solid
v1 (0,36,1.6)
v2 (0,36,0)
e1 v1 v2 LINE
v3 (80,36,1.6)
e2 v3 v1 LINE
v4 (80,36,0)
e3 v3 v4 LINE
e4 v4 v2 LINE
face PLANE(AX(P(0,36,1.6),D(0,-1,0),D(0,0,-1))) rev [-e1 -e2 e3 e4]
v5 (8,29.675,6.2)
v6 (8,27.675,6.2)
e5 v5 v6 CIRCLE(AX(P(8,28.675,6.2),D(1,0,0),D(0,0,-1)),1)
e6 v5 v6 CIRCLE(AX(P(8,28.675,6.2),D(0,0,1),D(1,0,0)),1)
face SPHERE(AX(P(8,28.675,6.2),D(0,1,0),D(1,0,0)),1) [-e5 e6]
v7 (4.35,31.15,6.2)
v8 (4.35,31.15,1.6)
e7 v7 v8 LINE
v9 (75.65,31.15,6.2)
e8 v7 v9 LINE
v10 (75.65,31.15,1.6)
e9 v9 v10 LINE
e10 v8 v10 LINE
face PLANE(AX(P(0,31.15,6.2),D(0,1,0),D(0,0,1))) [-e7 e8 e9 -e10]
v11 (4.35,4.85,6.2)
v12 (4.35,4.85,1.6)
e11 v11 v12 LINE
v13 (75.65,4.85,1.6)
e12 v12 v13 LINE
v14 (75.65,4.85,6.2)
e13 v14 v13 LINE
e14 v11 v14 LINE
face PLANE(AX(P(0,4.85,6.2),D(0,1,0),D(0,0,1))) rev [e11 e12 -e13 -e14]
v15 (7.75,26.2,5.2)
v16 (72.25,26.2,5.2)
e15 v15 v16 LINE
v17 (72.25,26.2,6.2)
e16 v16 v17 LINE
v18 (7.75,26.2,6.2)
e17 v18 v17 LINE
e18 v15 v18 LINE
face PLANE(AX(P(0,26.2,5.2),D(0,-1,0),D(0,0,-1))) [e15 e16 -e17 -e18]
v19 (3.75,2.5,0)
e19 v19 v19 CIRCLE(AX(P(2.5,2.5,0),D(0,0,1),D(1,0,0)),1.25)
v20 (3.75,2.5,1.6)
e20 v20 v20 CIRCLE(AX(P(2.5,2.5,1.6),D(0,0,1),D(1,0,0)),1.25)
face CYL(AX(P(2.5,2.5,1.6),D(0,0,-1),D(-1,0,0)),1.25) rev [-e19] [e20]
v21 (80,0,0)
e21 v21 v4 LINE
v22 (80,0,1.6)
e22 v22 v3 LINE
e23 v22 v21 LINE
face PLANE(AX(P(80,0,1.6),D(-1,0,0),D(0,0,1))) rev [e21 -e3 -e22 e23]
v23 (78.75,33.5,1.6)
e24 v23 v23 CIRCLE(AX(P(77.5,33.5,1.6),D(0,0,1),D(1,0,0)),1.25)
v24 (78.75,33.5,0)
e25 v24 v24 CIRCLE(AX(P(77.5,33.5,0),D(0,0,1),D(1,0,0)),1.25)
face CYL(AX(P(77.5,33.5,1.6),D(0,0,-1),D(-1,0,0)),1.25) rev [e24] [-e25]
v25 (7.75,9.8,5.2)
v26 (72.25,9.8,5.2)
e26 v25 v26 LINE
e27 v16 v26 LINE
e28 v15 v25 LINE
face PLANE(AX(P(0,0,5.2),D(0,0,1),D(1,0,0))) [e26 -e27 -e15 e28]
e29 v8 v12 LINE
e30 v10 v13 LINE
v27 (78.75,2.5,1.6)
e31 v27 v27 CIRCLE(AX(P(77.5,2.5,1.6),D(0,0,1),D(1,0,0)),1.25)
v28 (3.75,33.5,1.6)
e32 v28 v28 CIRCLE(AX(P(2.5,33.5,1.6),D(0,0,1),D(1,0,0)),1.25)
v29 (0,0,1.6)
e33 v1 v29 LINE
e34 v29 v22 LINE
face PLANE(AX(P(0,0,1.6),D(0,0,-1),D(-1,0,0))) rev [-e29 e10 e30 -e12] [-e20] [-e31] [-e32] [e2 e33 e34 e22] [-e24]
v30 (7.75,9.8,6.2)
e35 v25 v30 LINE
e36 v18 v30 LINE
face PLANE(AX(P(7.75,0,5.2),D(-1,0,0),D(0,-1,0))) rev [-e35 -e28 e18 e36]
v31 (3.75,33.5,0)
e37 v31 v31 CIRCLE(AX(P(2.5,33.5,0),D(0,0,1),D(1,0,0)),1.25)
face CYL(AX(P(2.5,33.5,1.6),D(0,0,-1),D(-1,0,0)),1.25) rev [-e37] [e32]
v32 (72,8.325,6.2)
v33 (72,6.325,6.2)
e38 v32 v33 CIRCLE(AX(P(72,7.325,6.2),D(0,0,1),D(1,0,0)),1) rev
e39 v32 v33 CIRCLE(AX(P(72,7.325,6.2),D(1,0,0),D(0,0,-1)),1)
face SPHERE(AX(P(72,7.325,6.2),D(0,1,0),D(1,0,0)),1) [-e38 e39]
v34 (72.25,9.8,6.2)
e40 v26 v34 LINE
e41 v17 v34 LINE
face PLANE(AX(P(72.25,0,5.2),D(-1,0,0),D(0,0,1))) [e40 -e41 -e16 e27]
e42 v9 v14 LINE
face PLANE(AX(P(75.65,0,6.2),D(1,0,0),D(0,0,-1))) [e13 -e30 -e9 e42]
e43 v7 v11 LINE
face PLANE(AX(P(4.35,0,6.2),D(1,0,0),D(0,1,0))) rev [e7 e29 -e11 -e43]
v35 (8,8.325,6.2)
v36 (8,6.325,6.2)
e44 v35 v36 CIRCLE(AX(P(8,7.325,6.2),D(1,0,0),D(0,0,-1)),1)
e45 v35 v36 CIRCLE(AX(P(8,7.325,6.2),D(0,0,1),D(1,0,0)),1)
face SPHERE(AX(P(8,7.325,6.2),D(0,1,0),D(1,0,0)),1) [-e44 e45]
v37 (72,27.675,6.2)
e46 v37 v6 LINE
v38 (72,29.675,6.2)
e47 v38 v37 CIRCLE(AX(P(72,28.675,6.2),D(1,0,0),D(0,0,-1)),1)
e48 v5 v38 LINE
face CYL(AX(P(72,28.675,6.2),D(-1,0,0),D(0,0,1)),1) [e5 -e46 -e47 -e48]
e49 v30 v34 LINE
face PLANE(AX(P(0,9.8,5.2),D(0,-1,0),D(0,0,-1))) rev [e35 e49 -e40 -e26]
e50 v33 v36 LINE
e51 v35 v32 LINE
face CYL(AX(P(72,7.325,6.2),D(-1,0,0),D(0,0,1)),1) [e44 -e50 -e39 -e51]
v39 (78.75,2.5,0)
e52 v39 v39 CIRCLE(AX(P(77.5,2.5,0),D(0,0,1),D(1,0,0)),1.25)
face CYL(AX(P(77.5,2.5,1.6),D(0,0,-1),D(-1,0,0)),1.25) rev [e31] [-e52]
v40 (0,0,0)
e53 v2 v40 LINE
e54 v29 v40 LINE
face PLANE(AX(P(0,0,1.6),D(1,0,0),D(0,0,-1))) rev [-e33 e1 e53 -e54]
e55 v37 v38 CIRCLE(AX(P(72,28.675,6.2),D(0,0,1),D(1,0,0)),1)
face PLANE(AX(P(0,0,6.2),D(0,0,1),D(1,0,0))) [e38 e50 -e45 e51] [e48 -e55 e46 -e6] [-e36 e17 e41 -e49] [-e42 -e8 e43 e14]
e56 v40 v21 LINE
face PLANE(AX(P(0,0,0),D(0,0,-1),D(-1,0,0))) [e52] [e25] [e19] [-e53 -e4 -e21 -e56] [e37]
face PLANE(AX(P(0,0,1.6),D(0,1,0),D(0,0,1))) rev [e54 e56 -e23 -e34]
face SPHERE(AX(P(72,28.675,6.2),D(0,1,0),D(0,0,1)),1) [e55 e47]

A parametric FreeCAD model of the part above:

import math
import FreeCAD as App
import Part
import Sketcher

doc = App.newDocument("Part")
params = doc.addObject("Spreadsheet::Sheet", "Params")
for row, (alias, value) in enumerate([
    ("sketch1_diameter", "2.5 mm"),
    ("sketch1_width", "80 mm"),
    ("sketch1_height", "36 mm"),
    ("pad1_length", "1.6 mm"),
    ("sketch2_width", "71.3 mm"),
    ("sketch2_height", "26.3 mm"),
    ("pad2_length", "4.6 mm"),
    ("sketch3_width", "64.5 mm"),
    ("sketch3_height", "16.4 mm"),
    ("pocket1_length", "1 mm"),
    ("sketch4_diameter", "2 mm"),
    ("pad3_length", "64 mm"),
    ("sketch5_radius", "1 mm"),
    ("revolution_angle", "90 deg"),
    ("sketch6_radius", "1 mm"),
    ("revolution2_angle", "360 deg"),
    ("sketch7_radius", "1 mm"),
    ("revolution3_angle", "360 deg"),
    ("sketch8_radius", "1 mm"),
    ("revolution4_angle", "360 deg"),
], start=1):
    params.set(f"A{row}", alias)
    params.set(f"B{row}", "=" + value)
    params.setAlias(f"B{row}", alias)

body = doc.addObject("PartDesign::Body", "Body")

# Sketch on XY plane
sketch1 = body.newObject("Sketcher::SketchObject", "Sketch")
sketch1.AttachmentSupport = (doc.getObject("XY_Plane"), [""])
sketch1.MapMode = "FlatFace"
sketch1.addGeometry([
    Part.LineSegment(App.Vector(0, 36, 0), App.Vector(0, 0, 0)),  # 0
    Part.LineSegment(App.Vector(0, 0, 0), App.Vector(80, 0, 0)),  # 1
    Part.LineSegment(App.Vector(80, 0, 0), App.Vector(80, 36, 0)),  # 2
    Part.LineSegment(App.Vector(80, 36, 0), App.Vector(0, 36, 0)),  # 3
    Part.Circle(App.Vector(2.5, 2.5, 0), App.Vector(0, 0, 1), 1.25),  # 4
    Part.Circle(App.Vector(77.5, 2.5, 0), App.Vector(0, 0, 1), 1.25),  # 5
    Part.Circle(App.Vector(2.5, 33.5, 0), App.Vector(0, 0, 1), 1.25),  # 6
    Part.Circle(App.Vector(77.5, 33.5, 0), App.Vector(0, 0, 1), 1.25),  # 7
], False)
sketch1.addConstraint([
    Sketcher.Constraint("Coincident", 0, 2, 1, 1),
    Sketcher.Constraint("Coincident", 1, 2, 2, 1),
    Sketcher.Constraint("Coincident", 2, 2, 3, 1),
    Sketcher.Constraint("Coincident", 3, 2, 0, 1),
    Sketcher.Constraint("Vertical", 0),
    Sketcher.Constraint("Horizontal", 1),
    Sketcher.Constraint("Vertical", 2),
    Sketcher.Constraint("Horizontal", 3),
    Sketcher.Constraint("Coincident", 0, 2, -1, 1),
    Sketcher.Constraint("Equal", 4, 5),
    Sketcher.Constraint("Equal", 5, 6),
    Sketcher.Constraint("Equal", 6, 7),
    Sketcher.Constraint("Horizontal", 4, 3, 5, 3),
    Sketcher.Constraint("Horizontal", 6, 3, 7, 3),
    Sketcher.Constraint("Vertical", 4, 3, 6, 3),
    Sketcher.Constraint("Vertical", 5, 3, 7, 3),
    Sketcher.Constraint("Diameter", 4, 2.5),
    Sketcher.Constraint("DistanceX", 1, 1, 1, 2, 80.0),
    Sketcher.Constraint("DistanceY", 0, 2, 0, 1, 36.0),
    Sketcher.Constraint("DistanceX", 4, 3, 5, 3, 75.0),
    Sketcher.Constraint("DistanceY", 4, 3, 6, 3, 31.0),
    Sketcher.Constraint("DistanceX", -1, 1, 4, 3, 2.5),
    Sketcher.Constraint("DistanceY", -1, 1, 4, 3, 2.5),
])
sketch1.setExpression("Constraints[16]", "Params.sketch1_diameter")
sketch1.setExpression("Constraints[17]", "Params.sketch1_width")
sketch1.setExpression("Constraints[18]", "Params.sketch1_height")
pad1 = body.newObject("PartDesign::Pad", "Pad")
pad1.Profile = sketch1
pad1.setExpression("Length", "Params.pad1_length")

# Sketch on XY plane
sketch2 = body.newObject("Sketcher::SketchObject", "Sketch001")
sketch2.AttachmentSupport = (doc.getObject("XY_Plane"), [""])
sketch2.MapMode = "FlatFace"
sketch2.AttachmentOffset = App.Placement(App.Vector(0, 0, 1.6), App.Rotation())
sketch2.addGeometry([
    Part.LineSegment(App.Vector(4.35, 31.15, 0), App.Vector(4.35, 4.85, 0)),
    Part.LineSegment(App.Vector(4.35, 4.85, 0), App.Vector(75.65, 4.85, 0)),
    Part.LineSegment(App.Vector(75.65, 4.85, 0), App.Vector(75.65, 31.15, 0)),
    Part.LineSegment(App.Vector(75.65, 31.15, 0), App.Vector(4.35, 31.15, 0)),
], False)
sketch2.addConstraint([
    Sketcher.Constraint("Coincident", 0, 2, 1, 1),
    Sketcher.Constraint("Coincident", 1, 2, 2, 1),
    Sketcher.Constraint("Coincident", 2, 2, 3, 1),
    Sketcher.Constraint("Coincident", 3, 2, 0, 1),
    Sketcher.Constraint("Vertical", 0),
    Sketcher.Constraint("Horizontal", 1),
    Sketcher.Constraint("Vertical", 2),
    Sketcher.Constraint("Horizontal", 3),
    Sketcher.Constraint("DistanceX", 1, 1, 1, 2, 71.3),
    Sketcher.Constraint("DistanceY", 0, 2, 0, 1, 26.3),
    Sketcher.Constraint("DistanceX", -1, 1, 0, 2, 4.35),
    Sketcher.Constraint("DistanceY", -1, 1, 0, 2, 4.85),
])
sketch2.setExpression("Constraints[8]", "Params.sketch2_width")
sketch2.setExpression("Constraints[9]", "Params.sketch2_height")
pad2 = body.newObject("PartDesign::Pad", "Pad001")
pad2.Profile = sketch2
pad2.setExpression("Length", "Params.pad2_length")

# Sketch on XY plane
sketch3 = body.newObject("Sketcher::SketchObject", "Sketch002")
sketch3.AttachmentSupport = (doc.getObject("XY_Plane"), [""])
sketch3.MapMode = "FlatFace"
sketch3.AttachmentOffset = App.Placement(App.Vector(0, 0, 6.2), App.Rotation())
sketch3.addGeometry([
    Part.LineSegment(App.Vector(7.75, 26.2, 0), App.Vector(7.75, 9.8, 0)),
    Part.LineSegment(App.Vector(7.75, 9.8, 0), App.Vector(72.25, 9.8, 0)),
    Part.LineSegment(App.Vector(72.25, 9.8, 0), App.Vector(72.25, 26.2, 0)),
    Part.LineSegment(App.Vector(72.25, 26.2, 0), App.Vector(7.75, 26.2, 0)),
], False)
sketch3.addConstraint([
    Sketcher.Constraint("Coincident", 0, 2, 1, 1),
    Sketcher.Constraint("Coincident", 1, 2, 2, 1),
    Sketcher.Constraint("Coincident", 2, 2, 3, 1),
    Sketcher.Constraint("Coincident", 3, 2, 0, 1),
    Sketcher.Constraint("Vertical", 0),
    Sketcher.Constraint("Horizontal", 1),
    Sketcher.Constraint("Vertical", 2),
    Sketcher.Constraint("Horizontal", 3),
    Sketcher.Constraint("DistanceX", 1, 1, 1, 2, 64.5),
    Sketcher.Constraint("DistanceY", 0, 2, 0, 1, 16.4),
    Sketcher.Constraint("DistanceY", -1, 1, 0, 2, 9.8),
    Sketcher.Constraint("DistanceX", -1, 1, 0, 2, 7.75),
])
sketch3.setExpression("Constraints[8]", "Params.sketch3_width")
sketch3.setExpression("Constraints[9]", "Params.sketch3_height")
pocket1 = body.newObject("PartDesign::Pocket", "Pocket")
pocket1.Profile = sketch3
pocket1.setExpression("Length", "Params.pocket1_length")

# Sketch on YZ plane
sketch4 = body.newObject("Sketcher::SketchObject", "Sketch003")
sketch4.AttachmentSupport = (doc.getObject("YZ_Plane"), [""])
sketch4.MapMode = "FlatFace"
sketch4.AttachmentOffset = App.Placement(App.Vector(0, 0, 40), App.Rotation())
sketch4.addGeometry([
    Part.Circle(App.Vector(28.675, 6.2, 0), App.Vector(0, 0, 1), 1),
    Part.Circle(App.Vector(7.325, 6.2, 0), App.Vector(0, 0, 1), 1),
], False)
sketch4.addConstraint([
    Sketcher.Constraint("Equal", 0, 1),
    Sketcher.Constraint("Horizontal", 0, 3, 1, 3),
    Sketcher.Constraint("Diameter", 0, 2.0),
    Sketcher.Constraint("DistanceY", -1, 1, 0, 3, 6.2),
    Sketcher.Constraint("DistanceX", 1, 3, 0, 3, 21.35),
    Sketcher.Constraint("DistanceX", -1, 1, 0, 3, 28.675),
])
sketch4.setExpression("Constraints[2]", "Params.sketch4_diameter")
pad3 = body.newObject("PartDesign::Pad", "Pad002")
pad3.Profile = sketch4
pad3.setExpression("Length", "Params.pad3_length")
pad3.Midplane = True

# Sketch on XY plane
sketch5 = body.newObject("Sketcher::SketchObject", "Sketch004")
sketch5.AttachmentSupport = (doc.getObject("XY_Plane"), [""])
sketch5.MapMode = "FlatFace"
sketch5.AttachmentOffset = App.Placement(App.Vector(0, 0, 6.2), App.Rotation())
sketch5.addGeometry([
    Part.LineSegment(App.Vector(72, 29.675, 0), App.Vector(72, 27.675, 0)),
    Part.ArcOfCircle(Part.Circle(App.Vector(72, 28.675, 0), App.Vector(0, 0, 1), 1), math.radians(-90), math.radians(90)),
], False)
sketch5.addGeometry(Part.LineSegment(App.Vector(72, 29.675, 0), App.Vector(72, 27.675, 0)), True)  # axis
sketch5.addConstraint([
    Sketcher.Constraint("Coincident", 0, 1, 1, 2),
    Sketcher.Constraint("Coincident", 1, 1, 0, 2),
    Sketcher.Constraint("Vertical", 0),
    Sketcher.Constraint("Vertical", 2),
    Sketcher.Constraint("Coincident", 2, 1, 0, 1),
    Sketcher.Constraint("Vertical", 1, 3, 0, 1),
    Sketcher.Constraint("Equal", 0, 2),
    Sketcher.Constraint("Radius", 1, 1.0),
    Sketcher.Constraint("DistanceX", -1, 1, 1, 3, 72.0),
    Sketcher.Constraint("DistanceY", -1, 1, 1, 3, 28.675),
])
sketch5.setExpression("Constraints[7]", "Params.sketch5_radius")
revolution = body.newObject("PartDesign::Revolution", "Revolution")
revolution.Profile = sketch5
revolution.ReferenceAxis = (sketch5, ["Axis0"])
revolution.setExpression("Angle", "Params.revolution_angle")

# Sketch on XY plane
sketch6 = body.newObject("Sketcher::SketchObject", "Sketch005")
sketch6.AttachmentSupport = (doc.getObject("XY_Plane"), [""])
sketch6.MapMode = "FlatFace"
sketch6.AttachmentOffset = App.Placement(App.Vector(0, 0, 6.2), App.Rotation())
sketch6.addGeometry([
    Part.LineSegment(App.Vector(8, 27.675, 0), App.Vector(8, 29.675, 0)),
    Part.ArcOfCircle(Part.Circle(App.Vector(8, 28.675, 0), App.Vector(0, 0, 1), 1), math.radians(90), math.radians(270)),
], False)
sketch6.addGeometry(Part.LineSegment(App.Vector(8, 29.675, 0), App.Vector(8, 27.675, 0)), True)  # axis
sketch6.addConstraint([
    Sketcher.Constraint("Coincident", 0, 1, 1, 2),
    Sketcher.Constraint("Coincident", 1, 1, 0, 2),
    Sketcher.Constraint("Vertical", 0),
    Sketcher.Constraint("Vertical", 2),
    Sketcher.Constraint("Coincident", 2, 1, 1, 1),
    Sketcher.Constraint("Vertical", 1, 3, 0, 1),
    Sketcher.Constraint("Equal", 0, 2),
    Sketcher.Constraint("Radius", 1, 1.0),
    Sketcher.Constraint("DistanceX", -1, 1, 1, 3, 8.0),
    Sketcher.Constraint("DistanceY", -1, 1, 1, 3, 28.675),
])
sketch6.setExpression("Constraints[7]", "Params.sketch6_radius")
revolution2 = body.newObject("PartDesign::Revolution", "Revolution001")
revolution2.Profile = sketch6
revolution2.ReferenceAxis = (sketch6, ["Axis0"])
revolution2.setExpression("Angle", "Params.revolution2_angle")

# Sketch on XY plane
sketch7 = body.newObject("Sketcher::SketchObject", "Sketch006")
sketch7.AttachmentSupport = (doc.getObject("XY_Plane"), [""])
sketch7.MapMode = "FlatFace"
sketch7.AttachmentOffset = App.Placement(App.Vector(0, 0, 6.2), App.Rotation())
sketch7.addGeometry([
    Part.LineSegment(App.Vector(8, 6.325, 0), App.Vector(8, 8.325, 0)),
    Part.ArcOfCircle(Part.Circle(App.Vector(8, 7.325, 0), App.Vector(0, 0, 1), 1), math.radians(90), math.radians(270)),
], False)
sketch7.addGeometry(Part.LineSegment(App.Vector(8, 8.325, 0), App.Vector(8, 6.325, 0)), True)  # axis
sketch7.addConstraint([
    Sketcher.Constraint("Coincident", 0, 1, 1, 2),
    Sketcher.Constraint("Coincident", 1, 1, 0, 2),
    Sketcher.Constraint("Vertical", 0),
    Sketcher.Constraint("Vertical", 2),
    Sketcher.Constraint("Coincident", 2, 1, 1, 1),
    Sketcher.Constraint("Vertical", 1, 3, 0, 1),
    Sketcher.Constraint("Equal", 0, 2),
    Sketcher.Constraint("Radius", 1, 1.0),
    Sketcher.Constraint("DistanceX", -1, 1, 1, 3, 8.0),
    Sketcher.Constraint("DistanceY", -1, 1, 1, 3, 7.325),
])
sketch7.setExpression("Constraints[7]", "Params.sketch7_radius")
revolution3 = body.newObject("PartDesign::Revolution", "Revolution002")
revolution3.Profile = sketch7
revolution3.ReferenceAxis = (sketch7, ["Axis0"])
revolution3.setExpression("Angle", "Params.revolution3_angle")

# Sketch on XY plane
sketch8 = body.newObject("Sketcher::SketchObject", "Sketch007")
sketch8.AttachmentSupport = (doc.getObject("XY_Plane"), [""])
sketch8.MapMode = "FlatFace"
sketch8.AttachmentOffset = App.Placement(App.Vector(0, 0, 6.2), App.Rotation())
sketch8.addGeometry([
    Part.LineSegment(App.Vector(72, 8.325, 0), App.Vector(72, 6.325, 0)),
    Part.ArcOfCircle(Part.Circle(App.Vector(72, 7.325, 0), App.Vector(0, 0, 1), 1), math.radians(-90), math.radians(90)),
], False)
sketch8.addGeometry(Part.LineSegment(App.Vector(72, 8.325, 0), App.Vector(72, 6.325, 0)), True)  # axis
sketch8.addConstraint([
    Sketcher.Constraint("Coincident", 0, 1, 1, 2),
    Sketcher.Constraint("Coincident", 1, 1, 0, 2),
    Sketcher.Constraint("Vertical", 0),
    Sketcher.Constraint("Vertical", 2),
    Sketcher.Constraint("Coincident", 2, 1, 0, 1),
    Sketcher.Constraint("Vertical", 1, 3, 0, 1),
    Sketcher.Constraint("Equal", 0, 2),
    Sketcher.Constraint("Radius", 1, 1.0),
    Sketcher.Constraint("DistanceX", -1, 1, 1, 3, 72.0),
    Sketcher.Constraint("DistanceY", -1, 1, 1, 3, 7.325),
])
sketch8.setExpression("Constraints[7]", "Params.sketch8_radius")
revolution4 = body.newObject("PartDesign::Revolution", "Revolution003")
revolution4.Profile = sketch8
revolution4.ReferenceAxis = (sketch8, ["Axis0"])
revolution4.setExpression("Angle", "Params.revolution4_angle")

doc.recompute()
